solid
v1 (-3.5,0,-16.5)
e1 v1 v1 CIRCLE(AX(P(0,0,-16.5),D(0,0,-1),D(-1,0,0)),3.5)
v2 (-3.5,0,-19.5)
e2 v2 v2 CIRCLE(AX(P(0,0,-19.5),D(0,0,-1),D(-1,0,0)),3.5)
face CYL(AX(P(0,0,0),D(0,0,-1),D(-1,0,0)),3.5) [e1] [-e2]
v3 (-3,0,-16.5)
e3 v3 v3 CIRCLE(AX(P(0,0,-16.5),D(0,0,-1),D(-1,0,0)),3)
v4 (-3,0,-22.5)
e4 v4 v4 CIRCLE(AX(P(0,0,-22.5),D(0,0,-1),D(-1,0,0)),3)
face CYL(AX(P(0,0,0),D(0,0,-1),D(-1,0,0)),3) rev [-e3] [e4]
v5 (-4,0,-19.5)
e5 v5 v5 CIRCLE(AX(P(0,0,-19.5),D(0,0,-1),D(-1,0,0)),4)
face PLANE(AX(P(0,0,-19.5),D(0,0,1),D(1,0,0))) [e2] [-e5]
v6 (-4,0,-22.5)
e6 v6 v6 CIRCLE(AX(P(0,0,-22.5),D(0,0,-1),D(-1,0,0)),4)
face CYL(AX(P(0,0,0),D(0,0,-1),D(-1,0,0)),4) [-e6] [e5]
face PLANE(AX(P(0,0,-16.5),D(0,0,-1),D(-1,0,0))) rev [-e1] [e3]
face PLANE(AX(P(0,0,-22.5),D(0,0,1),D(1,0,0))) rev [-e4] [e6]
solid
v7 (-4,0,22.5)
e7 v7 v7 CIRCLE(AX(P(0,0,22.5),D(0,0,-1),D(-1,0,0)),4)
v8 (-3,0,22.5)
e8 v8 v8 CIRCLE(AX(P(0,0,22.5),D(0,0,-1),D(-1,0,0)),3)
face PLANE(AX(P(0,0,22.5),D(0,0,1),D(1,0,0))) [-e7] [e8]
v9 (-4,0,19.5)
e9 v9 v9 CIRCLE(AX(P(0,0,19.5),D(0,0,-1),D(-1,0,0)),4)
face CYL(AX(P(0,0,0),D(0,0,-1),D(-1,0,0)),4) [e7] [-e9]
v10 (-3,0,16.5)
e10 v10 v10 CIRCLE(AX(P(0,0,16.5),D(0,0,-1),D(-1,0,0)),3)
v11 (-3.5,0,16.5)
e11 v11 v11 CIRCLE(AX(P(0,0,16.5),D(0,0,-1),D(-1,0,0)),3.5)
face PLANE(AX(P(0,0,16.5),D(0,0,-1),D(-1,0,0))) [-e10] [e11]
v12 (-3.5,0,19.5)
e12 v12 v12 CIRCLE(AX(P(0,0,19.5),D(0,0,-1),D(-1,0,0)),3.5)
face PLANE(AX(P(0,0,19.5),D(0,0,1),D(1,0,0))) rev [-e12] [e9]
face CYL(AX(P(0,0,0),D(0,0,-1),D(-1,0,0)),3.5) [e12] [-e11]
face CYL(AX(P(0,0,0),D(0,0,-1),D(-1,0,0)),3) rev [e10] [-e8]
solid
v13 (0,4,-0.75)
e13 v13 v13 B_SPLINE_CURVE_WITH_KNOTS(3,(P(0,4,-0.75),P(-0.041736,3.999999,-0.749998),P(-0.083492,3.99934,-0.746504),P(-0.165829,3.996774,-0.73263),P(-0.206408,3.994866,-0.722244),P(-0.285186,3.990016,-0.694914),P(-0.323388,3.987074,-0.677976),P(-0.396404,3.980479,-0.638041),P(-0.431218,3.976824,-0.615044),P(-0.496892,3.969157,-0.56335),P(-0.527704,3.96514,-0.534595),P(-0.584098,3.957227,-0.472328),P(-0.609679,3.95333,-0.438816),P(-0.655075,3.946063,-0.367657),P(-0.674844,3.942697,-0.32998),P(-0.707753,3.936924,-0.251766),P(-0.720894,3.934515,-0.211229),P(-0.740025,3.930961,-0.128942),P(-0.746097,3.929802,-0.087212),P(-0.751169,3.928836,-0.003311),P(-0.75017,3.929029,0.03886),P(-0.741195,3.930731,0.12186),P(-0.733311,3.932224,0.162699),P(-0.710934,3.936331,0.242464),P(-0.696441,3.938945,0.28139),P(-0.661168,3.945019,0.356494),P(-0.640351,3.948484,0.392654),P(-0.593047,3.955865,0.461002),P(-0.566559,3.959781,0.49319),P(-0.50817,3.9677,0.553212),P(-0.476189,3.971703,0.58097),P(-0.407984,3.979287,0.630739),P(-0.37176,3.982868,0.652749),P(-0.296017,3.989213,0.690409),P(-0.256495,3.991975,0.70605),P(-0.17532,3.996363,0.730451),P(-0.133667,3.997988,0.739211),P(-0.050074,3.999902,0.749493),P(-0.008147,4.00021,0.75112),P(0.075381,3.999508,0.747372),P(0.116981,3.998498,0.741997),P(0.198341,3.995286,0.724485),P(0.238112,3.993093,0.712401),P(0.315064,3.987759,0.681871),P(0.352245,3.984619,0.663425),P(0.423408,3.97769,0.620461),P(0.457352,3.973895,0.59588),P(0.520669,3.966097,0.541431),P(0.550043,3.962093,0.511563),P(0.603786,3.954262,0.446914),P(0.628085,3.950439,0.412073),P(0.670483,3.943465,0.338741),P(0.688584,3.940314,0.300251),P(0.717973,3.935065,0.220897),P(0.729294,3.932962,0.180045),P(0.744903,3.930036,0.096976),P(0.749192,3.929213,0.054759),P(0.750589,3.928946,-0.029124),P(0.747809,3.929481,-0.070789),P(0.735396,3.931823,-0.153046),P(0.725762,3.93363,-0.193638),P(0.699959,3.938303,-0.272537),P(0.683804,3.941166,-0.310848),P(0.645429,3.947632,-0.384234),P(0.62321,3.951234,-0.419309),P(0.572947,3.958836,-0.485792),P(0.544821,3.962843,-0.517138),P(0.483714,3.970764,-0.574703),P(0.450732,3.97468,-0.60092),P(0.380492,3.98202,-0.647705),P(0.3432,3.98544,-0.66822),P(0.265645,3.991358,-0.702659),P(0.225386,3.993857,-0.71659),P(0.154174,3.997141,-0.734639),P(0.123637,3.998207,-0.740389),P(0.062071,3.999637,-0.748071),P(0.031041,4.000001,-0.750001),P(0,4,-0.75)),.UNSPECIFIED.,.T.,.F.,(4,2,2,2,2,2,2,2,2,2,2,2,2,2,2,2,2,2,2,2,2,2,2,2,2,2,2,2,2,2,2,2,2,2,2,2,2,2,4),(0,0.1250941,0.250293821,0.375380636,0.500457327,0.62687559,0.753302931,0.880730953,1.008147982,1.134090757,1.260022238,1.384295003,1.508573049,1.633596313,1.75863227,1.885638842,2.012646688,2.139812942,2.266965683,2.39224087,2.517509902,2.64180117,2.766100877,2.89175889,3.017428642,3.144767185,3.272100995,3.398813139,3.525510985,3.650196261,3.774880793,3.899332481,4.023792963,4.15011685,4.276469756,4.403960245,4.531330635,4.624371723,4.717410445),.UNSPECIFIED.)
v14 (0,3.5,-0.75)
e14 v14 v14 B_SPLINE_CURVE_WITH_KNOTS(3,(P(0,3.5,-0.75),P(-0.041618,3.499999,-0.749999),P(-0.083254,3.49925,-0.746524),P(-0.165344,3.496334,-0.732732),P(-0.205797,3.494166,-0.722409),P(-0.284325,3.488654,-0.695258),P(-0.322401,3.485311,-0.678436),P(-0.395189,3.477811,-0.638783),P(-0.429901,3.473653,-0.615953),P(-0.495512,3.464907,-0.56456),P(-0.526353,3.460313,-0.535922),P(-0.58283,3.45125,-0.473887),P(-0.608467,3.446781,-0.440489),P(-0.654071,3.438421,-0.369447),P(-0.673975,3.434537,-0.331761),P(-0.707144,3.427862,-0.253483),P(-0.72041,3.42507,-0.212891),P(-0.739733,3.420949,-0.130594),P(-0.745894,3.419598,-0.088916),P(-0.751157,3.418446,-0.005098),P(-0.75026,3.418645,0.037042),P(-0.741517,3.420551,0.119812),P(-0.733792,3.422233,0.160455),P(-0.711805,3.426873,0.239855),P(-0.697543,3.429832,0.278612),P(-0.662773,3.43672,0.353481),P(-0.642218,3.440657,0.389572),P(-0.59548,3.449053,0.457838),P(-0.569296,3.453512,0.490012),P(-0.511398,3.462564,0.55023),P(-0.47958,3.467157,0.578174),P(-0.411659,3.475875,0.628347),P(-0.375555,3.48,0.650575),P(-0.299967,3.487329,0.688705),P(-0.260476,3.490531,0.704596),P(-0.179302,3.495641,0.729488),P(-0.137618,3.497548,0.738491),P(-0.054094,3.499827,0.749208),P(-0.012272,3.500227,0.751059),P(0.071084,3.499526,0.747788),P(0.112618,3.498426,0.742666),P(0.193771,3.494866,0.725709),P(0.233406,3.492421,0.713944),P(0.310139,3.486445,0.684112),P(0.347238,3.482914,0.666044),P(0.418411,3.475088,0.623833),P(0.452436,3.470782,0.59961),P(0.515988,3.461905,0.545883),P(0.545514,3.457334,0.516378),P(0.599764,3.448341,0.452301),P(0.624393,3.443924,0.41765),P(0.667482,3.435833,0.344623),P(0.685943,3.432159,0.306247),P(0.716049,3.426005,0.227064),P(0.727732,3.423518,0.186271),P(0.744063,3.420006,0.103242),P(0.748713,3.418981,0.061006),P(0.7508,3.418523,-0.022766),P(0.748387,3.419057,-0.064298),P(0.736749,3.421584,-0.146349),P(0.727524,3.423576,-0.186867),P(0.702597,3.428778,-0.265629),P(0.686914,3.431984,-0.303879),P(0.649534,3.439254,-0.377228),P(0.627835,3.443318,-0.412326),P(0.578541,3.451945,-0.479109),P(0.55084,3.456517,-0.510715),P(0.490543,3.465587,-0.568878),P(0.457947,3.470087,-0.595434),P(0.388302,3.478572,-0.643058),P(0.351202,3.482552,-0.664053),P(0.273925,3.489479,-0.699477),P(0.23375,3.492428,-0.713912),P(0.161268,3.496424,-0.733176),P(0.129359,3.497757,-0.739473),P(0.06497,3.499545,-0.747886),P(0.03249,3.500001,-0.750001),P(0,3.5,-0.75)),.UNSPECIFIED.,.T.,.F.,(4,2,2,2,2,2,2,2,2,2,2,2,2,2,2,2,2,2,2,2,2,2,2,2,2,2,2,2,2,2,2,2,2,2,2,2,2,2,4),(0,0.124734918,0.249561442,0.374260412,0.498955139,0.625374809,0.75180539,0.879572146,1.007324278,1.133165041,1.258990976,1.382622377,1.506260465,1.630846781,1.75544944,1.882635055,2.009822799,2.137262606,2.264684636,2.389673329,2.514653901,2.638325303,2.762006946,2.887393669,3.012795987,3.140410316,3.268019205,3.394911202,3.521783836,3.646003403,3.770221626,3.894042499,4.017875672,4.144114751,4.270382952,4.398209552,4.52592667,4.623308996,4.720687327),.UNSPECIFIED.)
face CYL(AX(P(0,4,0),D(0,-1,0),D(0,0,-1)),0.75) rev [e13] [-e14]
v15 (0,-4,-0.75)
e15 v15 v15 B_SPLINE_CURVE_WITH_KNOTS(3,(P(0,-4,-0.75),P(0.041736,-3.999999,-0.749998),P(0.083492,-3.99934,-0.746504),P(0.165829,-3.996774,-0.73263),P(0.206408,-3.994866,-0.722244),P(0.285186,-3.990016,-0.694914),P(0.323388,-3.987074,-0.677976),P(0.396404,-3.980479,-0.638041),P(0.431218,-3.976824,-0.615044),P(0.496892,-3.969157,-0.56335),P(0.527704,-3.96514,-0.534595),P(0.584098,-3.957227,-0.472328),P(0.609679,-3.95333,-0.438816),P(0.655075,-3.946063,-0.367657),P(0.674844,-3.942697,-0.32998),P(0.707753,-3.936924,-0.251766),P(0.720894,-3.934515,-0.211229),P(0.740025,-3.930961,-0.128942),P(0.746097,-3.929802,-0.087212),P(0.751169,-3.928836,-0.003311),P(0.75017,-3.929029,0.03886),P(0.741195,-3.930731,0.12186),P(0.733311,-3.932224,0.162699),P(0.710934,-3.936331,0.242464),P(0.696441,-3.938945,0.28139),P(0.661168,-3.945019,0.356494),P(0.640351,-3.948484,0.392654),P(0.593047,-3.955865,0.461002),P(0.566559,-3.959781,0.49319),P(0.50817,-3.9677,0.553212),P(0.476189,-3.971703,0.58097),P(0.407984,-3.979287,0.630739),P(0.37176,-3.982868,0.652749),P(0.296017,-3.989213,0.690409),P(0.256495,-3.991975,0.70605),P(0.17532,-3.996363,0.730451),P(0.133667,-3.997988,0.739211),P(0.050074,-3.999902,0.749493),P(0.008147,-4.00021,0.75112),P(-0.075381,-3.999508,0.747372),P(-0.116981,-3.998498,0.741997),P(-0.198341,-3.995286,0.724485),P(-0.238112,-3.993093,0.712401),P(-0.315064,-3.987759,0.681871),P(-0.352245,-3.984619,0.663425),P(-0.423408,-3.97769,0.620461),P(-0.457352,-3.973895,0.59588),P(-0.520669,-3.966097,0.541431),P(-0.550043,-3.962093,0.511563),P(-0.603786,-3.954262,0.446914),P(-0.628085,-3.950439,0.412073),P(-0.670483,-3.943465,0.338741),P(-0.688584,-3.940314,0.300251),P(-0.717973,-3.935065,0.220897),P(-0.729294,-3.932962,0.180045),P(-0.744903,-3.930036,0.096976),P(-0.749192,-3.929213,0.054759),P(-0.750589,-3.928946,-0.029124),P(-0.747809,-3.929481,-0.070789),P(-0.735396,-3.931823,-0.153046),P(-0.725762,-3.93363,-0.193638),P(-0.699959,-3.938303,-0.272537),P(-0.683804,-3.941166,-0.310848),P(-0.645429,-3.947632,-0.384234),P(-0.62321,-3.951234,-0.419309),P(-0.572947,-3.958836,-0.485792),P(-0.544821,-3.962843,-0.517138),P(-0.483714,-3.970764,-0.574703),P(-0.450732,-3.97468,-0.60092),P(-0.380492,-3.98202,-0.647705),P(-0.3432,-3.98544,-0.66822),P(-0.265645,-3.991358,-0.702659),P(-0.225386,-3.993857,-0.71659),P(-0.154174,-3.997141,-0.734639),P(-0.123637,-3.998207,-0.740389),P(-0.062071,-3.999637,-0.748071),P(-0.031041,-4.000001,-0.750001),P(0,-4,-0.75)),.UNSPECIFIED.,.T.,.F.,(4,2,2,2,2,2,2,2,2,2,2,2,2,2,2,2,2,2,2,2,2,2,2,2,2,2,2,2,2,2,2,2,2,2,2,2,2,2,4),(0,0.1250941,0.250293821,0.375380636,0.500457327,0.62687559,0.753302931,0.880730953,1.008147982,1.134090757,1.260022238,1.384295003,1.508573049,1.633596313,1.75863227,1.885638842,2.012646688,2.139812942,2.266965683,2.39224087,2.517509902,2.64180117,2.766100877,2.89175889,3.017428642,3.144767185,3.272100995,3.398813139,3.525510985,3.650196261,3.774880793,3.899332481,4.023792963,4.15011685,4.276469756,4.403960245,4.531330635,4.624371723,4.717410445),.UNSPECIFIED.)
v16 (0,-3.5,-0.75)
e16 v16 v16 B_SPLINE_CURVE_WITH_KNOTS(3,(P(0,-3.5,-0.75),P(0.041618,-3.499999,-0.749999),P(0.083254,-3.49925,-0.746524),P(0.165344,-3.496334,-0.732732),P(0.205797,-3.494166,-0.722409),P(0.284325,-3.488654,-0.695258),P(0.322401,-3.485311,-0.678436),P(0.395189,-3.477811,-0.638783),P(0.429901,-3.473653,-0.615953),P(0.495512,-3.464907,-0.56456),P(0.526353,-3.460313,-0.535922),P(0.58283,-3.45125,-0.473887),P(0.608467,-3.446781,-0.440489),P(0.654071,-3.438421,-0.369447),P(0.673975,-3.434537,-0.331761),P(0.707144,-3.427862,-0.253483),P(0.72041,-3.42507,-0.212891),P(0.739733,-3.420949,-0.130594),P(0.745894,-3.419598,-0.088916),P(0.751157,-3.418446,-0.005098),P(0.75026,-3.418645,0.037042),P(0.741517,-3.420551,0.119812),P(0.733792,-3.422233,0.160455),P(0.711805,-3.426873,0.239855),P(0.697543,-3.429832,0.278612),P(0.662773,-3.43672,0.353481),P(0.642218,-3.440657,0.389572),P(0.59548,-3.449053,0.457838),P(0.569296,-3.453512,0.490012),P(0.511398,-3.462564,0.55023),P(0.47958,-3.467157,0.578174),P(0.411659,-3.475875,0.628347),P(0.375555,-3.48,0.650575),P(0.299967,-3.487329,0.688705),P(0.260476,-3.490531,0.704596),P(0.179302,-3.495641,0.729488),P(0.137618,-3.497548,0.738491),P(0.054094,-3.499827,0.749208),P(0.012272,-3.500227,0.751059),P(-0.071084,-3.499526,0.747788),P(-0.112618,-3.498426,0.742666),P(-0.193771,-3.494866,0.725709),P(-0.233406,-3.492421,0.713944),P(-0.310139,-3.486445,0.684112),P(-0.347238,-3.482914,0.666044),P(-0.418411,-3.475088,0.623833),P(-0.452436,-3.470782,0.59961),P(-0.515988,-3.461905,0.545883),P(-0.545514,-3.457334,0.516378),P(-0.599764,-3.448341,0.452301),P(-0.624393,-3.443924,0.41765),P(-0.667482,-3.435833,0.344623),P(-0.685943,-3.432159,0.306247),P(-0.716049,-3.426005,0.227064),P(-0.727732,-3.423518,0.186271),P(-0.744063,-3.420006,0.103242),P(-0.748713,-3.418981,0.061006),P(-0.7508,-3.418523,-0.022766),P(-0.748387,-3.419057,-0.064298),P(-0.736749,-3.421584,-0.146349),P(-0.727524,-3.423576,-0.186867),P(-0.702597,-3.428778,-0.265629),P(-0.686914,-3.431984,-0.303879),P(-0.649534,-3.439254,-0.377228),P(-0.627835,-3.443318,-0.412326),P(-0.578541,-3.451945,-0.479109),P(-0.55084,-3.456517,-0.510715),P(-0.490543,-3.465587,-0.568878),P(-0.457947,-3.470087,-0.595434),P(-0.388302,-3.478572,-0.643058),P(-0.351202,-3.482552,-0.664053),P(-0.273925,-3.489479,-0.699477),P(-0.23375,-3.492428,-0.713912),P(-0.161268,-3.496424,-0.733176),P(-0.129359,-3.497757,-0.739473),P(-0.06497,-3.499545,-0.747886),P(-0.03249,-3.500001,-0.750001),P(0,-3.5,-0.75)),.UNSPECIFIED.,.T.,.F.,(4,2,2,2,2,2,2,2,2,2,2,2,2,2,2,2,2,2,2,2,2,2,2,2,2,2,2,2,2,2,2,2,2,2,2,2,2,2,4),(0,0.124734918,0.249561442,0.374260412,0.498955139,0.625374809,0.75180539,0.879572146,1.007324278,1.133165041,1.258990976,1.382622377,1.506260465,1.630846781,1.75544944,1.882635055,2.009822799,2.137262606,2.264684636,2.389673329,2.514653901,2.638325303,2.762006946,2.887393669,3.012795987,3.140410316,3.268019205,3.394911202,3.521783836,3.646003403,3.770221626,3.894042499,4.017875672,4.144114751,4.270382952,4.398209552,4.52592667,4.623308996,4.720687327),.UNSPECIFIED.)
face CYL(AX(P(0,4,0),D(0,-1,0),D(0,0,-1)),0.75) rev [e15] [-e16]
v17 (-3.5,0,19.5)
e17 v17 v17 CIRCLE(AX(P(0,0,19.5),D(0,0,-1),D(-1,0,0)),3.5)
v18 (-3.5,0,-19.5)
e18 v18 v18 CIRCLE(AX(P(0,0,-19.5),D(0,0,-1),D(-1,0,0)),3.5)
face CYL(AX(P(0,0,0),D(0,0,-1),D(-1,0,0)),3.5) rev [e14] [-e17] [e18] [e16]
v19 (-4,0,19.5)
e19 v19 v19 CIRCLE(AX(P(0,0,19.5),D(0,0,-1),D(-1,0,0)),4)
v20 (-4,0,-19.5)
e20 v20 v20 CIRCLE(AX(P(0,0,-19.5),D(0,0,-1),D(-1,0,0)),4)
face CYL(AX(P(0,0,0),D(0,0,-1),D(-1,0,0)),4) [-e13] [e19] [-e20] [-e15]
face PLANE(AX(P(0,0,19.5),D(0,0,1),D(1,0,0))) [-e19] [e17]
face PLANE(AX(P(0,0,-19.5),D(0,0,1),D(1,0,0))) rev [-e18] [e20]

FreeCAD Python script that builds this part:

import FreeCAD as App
import Part
import Sketcher

V = App.Vector

doc = App.newDocument("Part")
params = doc.addObject("Spreadsheet::Sheet", "Params")
for row, (alias, value) in enumerate([
    ("sketch1_height", "39 mm"),
    ("sketch1_width", "0.5 mm"),
    ("revolution_angle", "360 deg"),
    ("sketch2_diameter", "1.5 mm"),
    ("sketch3_width", "1 mm"),
    ("sketch3_height", "3 mm"),
    ("revolution2_angle", "360 deg"),
], start=1):
    params.set(f"A{row}", alias)
    params.set(f"B{row}", "=" + value)
    params.setAlias(f"B{row}", alias)

body = doc.addObject("PartDesign::Body", "Body")

# Sketch on YZ plane
sketch1 = doc.addObject("Sketcher::SketchObject", "Sketch")
body.addObject(sketch1)
sketch1.AttachmentSupport = (doc.YZ_Plane, [""])
sketch1.MapMode = "FlatFace"
sketch1.addGeometry([
    Part.LineSegment(V(4, 19.5, 0), V(3.5, 19.5, 0)),
    Part.LineSegment(V(3.5, 19.5, 0), V(3.5, -19.5, 0)),
    Part.LineSegment(V(3.5, -19.5, 0), V(4, -19.5, 0)),
    Part.LineSegment(V(4, -19.5, 0), V(4, 19.5, 0)),
], False)
sketch1.addConstraint([
    Sketcher.Constraint("Coincident", 0, 2, 1, 1),
    Sketcher.Constraint("Coincident", 1, 2, 2, 1),
    Sketcher.Constraint("Coincident", 2, 2, 3, 1),
    Sketcher.Constraint("Coincident", 3, 2, 0, 1),
    Sketcher.Constraint("Horizontal", 0),
    Sketcher.Constraint("Vertical", 1),
    Sketcher.Constraint("Horizontal", 2),
    Sketcher.Constraint("Vertical", 3),
    Sketcher.Constraint("DistanceY", 1, 2, 1, 1, 39.0),
    Sketcher.Constraint("DistanceX", 0, 2, 0, 1, 0.5),
    Sketcher.Constraint("DistanceX", -1, 1, 2, 2, 4.0),
    Sketcher.Constraint("DistanceY", -1, 1, 0, 2, 19.5),
])
sketch1.setExpression("Constraints[8]", "Params.sketch1_height")
sketch1.setExpression("Constraints[9]", "Params.sketch1_width")
revolution = doc.addObject("PartDesign::Revolution", "Revolution")
body.addObject(revolution)
revolution.Profile = sketch1
revolution.ReferenceAxis = (sketch1, ["V_Axis"])
revolution.setExpression("Angle", "Params.revolution_angle")

# Sketch on XZ plane
sketch2 = doc.addObject("Sketcher::SketchObject", "Sketch001")
body.addObject(sketch2)
sketch2.AttachmentSupport = (doc.XZ_Plane, [""])
sketch2.MapMode = "FlatFace"
sketch2.addGeometry(Part.Circle(V(0, 0, 0), V(0, 0, 1), 0.8), False)
sketch2.addConstraint([
    Sketcher.Constraint("Coincident", 0, 3, -1, 1),
    Sketcher.Constraint("Diameter", 0, 1.5),
])
sketch2.setExpression("Constraints[1]", "Params.sketch2_diameter")
pocket1 = doc.addObject("PartDesign::Pocket", "Pocket")
body.addObject(pocket1)
pocket1.Profile = sketch2
pocket1.Type = "ThroughAll"
pocket1.Midplane = True
body2 = doc.addObject("PartDesign::Body", "Body001")
body2.AllowCompound = True

# Sketch on YZ plane
sketch3 = doc.addObject("Sketcher::SketchObject", "Sketch002")
body2.addObject(sketch3)
sketch3.AttachmentSupport = (doc.getObject("YZ_Plane001"), [""])
sketch3.MapMode = "FlatFace"
sketch3.addGeometry([
    Part.LineSegment(V(3.5, 16.5, 0), V(3.5, 19.5, 0)),  # 0
    Part.LineSegment(V(3.5, 19.5, 0), V(4, 19.5, 0)),  # 1
    Part.LineSegment(V(4, 19.5, 0), V(4, 22.5, 0)),  # 2
    Part.LineSegment(V(4, 22.5, 0), V(3, 22.5, 0)),  # 3
    Part.LineSegment(V(3, 22.5, 0), V(3, 16.5, 0)),  # 4
    Part.LineSegment(V(3, 16.5, 0), V(3.5, 16.5, 0)),  # 5
    Part.LineSegment(V(3.5, -19.5, 0), V(3.5, -16.5, 0)),  # 6
    Part.LineSegment(V(3.5, -16.5, 0), V(3, -16.5, 0)),  # 7
    Part.LineSegment(V(3, -16.5, 0), V(3, -22.5, 0)),  # 8
    Part.LineSegment(V(3, -22.5, 0), V(4, -22.5, 0)),  # 9
    Part.LineSegment(V(4, -22.5, 0), V(4, -19.5, 0)),  # 10
    Part.LineSegment(V(4, -19.5, 0), V(3.5, -19.5, 0)),  # 11
], False)
sketch3.addConstraint([
    Sketcher.Constraint("Coincident", 0, 2, 1, 1),
    Sketcher.Constraint("Coincident", 1, 2, 2, 1),
    Sketcher.Constraint("Coincident", 2, 2, 3, 1),
    Sketcher.Constraint("Coincident", 3, 2, 4, 1),
    Sketcher.Constraint("Coincident", 4, 2, 5, 1),
    Sketcher.Constraint("Coincident", 5, 2, 0, 1),
    Sketcher.Constraint("Coincident", 6, 2, 7, 1),
    Sketcher.Constraint("Coincident", 7, 2, 8, 1),
    Sketcher.Constraint("Coincident", 8, 2, 9, 1),
    Sketcher.Constraint("Coincident", 9, 2, 10, 1),
    Sketcher.Constraint("Coincident", 10, 2, 11, 1),
    Sketcher.Constraint("Coincident", 11, 2, 6, 1),
    Sketcher.Constraint("Vertical", 0),
    Sketcher.Constraint("Horizontal", 1),
    Sketcher.Constraint("Vertical", 2),
    Sketcher.Constraint("Horizontal", 3),
    Sketcher.Constraint("Vertical", 4),
    Sketcher.Constraint("Horizontal", 5),
    Sketcher.Constraint("Vertical", 6),
    Sketcher.Constraint("Horizontal", 7),
    Sketcher.Constraint("Vertical", 8),
    Sketcher.Constraint("Horizontal", 9),
    Sketcher.Constraint("Vertical", 10),
    Sketcher.Constraint("Horizontal", 11),
    Sketcher.Constraint("Symmetric", 5, 2, 6, 2, -1),
    Sketcher.Constraint("Symmetric", 3, 2, 8, 2, -1),
    Sketcher.Constraint("Symmetric", 1, 2, 10, 2, -1),
    Sketcher.Constraint("Equal", 1, 5),
    Sketcher.Constraint("Equal", 0, 2),
    Sketcher.Constraint("DistanceX", 3, 2, 3, 1, 1.0),
    Sketcher.Constraint("DistanceY", 0, 1, 0, 2, 3.0),
    Sketcher.Constraint("DistanceX", -1, 1, 1, 2, 4.0),
    Sketcher.Constraint("DistanceY", 6, 2, 5, 2, 33.0),
])
sketch3.setExpression("Constraints[29]", "Params.sketch3_width")
sketch3.setExpression("Constraints[30]", "Params.sketch3_height")
revolution2 = doc.addObject("PartDesign::Revolution", "Revolution001")
body2.addObject(revolution2)
revolution2.Profile = sketch3
revolution2.ReferenceAxis = (sketch3, ["V_Axis"])
revolution2.setExpression("Angle", "Params.revolution2_angle")

doc.recompute()
